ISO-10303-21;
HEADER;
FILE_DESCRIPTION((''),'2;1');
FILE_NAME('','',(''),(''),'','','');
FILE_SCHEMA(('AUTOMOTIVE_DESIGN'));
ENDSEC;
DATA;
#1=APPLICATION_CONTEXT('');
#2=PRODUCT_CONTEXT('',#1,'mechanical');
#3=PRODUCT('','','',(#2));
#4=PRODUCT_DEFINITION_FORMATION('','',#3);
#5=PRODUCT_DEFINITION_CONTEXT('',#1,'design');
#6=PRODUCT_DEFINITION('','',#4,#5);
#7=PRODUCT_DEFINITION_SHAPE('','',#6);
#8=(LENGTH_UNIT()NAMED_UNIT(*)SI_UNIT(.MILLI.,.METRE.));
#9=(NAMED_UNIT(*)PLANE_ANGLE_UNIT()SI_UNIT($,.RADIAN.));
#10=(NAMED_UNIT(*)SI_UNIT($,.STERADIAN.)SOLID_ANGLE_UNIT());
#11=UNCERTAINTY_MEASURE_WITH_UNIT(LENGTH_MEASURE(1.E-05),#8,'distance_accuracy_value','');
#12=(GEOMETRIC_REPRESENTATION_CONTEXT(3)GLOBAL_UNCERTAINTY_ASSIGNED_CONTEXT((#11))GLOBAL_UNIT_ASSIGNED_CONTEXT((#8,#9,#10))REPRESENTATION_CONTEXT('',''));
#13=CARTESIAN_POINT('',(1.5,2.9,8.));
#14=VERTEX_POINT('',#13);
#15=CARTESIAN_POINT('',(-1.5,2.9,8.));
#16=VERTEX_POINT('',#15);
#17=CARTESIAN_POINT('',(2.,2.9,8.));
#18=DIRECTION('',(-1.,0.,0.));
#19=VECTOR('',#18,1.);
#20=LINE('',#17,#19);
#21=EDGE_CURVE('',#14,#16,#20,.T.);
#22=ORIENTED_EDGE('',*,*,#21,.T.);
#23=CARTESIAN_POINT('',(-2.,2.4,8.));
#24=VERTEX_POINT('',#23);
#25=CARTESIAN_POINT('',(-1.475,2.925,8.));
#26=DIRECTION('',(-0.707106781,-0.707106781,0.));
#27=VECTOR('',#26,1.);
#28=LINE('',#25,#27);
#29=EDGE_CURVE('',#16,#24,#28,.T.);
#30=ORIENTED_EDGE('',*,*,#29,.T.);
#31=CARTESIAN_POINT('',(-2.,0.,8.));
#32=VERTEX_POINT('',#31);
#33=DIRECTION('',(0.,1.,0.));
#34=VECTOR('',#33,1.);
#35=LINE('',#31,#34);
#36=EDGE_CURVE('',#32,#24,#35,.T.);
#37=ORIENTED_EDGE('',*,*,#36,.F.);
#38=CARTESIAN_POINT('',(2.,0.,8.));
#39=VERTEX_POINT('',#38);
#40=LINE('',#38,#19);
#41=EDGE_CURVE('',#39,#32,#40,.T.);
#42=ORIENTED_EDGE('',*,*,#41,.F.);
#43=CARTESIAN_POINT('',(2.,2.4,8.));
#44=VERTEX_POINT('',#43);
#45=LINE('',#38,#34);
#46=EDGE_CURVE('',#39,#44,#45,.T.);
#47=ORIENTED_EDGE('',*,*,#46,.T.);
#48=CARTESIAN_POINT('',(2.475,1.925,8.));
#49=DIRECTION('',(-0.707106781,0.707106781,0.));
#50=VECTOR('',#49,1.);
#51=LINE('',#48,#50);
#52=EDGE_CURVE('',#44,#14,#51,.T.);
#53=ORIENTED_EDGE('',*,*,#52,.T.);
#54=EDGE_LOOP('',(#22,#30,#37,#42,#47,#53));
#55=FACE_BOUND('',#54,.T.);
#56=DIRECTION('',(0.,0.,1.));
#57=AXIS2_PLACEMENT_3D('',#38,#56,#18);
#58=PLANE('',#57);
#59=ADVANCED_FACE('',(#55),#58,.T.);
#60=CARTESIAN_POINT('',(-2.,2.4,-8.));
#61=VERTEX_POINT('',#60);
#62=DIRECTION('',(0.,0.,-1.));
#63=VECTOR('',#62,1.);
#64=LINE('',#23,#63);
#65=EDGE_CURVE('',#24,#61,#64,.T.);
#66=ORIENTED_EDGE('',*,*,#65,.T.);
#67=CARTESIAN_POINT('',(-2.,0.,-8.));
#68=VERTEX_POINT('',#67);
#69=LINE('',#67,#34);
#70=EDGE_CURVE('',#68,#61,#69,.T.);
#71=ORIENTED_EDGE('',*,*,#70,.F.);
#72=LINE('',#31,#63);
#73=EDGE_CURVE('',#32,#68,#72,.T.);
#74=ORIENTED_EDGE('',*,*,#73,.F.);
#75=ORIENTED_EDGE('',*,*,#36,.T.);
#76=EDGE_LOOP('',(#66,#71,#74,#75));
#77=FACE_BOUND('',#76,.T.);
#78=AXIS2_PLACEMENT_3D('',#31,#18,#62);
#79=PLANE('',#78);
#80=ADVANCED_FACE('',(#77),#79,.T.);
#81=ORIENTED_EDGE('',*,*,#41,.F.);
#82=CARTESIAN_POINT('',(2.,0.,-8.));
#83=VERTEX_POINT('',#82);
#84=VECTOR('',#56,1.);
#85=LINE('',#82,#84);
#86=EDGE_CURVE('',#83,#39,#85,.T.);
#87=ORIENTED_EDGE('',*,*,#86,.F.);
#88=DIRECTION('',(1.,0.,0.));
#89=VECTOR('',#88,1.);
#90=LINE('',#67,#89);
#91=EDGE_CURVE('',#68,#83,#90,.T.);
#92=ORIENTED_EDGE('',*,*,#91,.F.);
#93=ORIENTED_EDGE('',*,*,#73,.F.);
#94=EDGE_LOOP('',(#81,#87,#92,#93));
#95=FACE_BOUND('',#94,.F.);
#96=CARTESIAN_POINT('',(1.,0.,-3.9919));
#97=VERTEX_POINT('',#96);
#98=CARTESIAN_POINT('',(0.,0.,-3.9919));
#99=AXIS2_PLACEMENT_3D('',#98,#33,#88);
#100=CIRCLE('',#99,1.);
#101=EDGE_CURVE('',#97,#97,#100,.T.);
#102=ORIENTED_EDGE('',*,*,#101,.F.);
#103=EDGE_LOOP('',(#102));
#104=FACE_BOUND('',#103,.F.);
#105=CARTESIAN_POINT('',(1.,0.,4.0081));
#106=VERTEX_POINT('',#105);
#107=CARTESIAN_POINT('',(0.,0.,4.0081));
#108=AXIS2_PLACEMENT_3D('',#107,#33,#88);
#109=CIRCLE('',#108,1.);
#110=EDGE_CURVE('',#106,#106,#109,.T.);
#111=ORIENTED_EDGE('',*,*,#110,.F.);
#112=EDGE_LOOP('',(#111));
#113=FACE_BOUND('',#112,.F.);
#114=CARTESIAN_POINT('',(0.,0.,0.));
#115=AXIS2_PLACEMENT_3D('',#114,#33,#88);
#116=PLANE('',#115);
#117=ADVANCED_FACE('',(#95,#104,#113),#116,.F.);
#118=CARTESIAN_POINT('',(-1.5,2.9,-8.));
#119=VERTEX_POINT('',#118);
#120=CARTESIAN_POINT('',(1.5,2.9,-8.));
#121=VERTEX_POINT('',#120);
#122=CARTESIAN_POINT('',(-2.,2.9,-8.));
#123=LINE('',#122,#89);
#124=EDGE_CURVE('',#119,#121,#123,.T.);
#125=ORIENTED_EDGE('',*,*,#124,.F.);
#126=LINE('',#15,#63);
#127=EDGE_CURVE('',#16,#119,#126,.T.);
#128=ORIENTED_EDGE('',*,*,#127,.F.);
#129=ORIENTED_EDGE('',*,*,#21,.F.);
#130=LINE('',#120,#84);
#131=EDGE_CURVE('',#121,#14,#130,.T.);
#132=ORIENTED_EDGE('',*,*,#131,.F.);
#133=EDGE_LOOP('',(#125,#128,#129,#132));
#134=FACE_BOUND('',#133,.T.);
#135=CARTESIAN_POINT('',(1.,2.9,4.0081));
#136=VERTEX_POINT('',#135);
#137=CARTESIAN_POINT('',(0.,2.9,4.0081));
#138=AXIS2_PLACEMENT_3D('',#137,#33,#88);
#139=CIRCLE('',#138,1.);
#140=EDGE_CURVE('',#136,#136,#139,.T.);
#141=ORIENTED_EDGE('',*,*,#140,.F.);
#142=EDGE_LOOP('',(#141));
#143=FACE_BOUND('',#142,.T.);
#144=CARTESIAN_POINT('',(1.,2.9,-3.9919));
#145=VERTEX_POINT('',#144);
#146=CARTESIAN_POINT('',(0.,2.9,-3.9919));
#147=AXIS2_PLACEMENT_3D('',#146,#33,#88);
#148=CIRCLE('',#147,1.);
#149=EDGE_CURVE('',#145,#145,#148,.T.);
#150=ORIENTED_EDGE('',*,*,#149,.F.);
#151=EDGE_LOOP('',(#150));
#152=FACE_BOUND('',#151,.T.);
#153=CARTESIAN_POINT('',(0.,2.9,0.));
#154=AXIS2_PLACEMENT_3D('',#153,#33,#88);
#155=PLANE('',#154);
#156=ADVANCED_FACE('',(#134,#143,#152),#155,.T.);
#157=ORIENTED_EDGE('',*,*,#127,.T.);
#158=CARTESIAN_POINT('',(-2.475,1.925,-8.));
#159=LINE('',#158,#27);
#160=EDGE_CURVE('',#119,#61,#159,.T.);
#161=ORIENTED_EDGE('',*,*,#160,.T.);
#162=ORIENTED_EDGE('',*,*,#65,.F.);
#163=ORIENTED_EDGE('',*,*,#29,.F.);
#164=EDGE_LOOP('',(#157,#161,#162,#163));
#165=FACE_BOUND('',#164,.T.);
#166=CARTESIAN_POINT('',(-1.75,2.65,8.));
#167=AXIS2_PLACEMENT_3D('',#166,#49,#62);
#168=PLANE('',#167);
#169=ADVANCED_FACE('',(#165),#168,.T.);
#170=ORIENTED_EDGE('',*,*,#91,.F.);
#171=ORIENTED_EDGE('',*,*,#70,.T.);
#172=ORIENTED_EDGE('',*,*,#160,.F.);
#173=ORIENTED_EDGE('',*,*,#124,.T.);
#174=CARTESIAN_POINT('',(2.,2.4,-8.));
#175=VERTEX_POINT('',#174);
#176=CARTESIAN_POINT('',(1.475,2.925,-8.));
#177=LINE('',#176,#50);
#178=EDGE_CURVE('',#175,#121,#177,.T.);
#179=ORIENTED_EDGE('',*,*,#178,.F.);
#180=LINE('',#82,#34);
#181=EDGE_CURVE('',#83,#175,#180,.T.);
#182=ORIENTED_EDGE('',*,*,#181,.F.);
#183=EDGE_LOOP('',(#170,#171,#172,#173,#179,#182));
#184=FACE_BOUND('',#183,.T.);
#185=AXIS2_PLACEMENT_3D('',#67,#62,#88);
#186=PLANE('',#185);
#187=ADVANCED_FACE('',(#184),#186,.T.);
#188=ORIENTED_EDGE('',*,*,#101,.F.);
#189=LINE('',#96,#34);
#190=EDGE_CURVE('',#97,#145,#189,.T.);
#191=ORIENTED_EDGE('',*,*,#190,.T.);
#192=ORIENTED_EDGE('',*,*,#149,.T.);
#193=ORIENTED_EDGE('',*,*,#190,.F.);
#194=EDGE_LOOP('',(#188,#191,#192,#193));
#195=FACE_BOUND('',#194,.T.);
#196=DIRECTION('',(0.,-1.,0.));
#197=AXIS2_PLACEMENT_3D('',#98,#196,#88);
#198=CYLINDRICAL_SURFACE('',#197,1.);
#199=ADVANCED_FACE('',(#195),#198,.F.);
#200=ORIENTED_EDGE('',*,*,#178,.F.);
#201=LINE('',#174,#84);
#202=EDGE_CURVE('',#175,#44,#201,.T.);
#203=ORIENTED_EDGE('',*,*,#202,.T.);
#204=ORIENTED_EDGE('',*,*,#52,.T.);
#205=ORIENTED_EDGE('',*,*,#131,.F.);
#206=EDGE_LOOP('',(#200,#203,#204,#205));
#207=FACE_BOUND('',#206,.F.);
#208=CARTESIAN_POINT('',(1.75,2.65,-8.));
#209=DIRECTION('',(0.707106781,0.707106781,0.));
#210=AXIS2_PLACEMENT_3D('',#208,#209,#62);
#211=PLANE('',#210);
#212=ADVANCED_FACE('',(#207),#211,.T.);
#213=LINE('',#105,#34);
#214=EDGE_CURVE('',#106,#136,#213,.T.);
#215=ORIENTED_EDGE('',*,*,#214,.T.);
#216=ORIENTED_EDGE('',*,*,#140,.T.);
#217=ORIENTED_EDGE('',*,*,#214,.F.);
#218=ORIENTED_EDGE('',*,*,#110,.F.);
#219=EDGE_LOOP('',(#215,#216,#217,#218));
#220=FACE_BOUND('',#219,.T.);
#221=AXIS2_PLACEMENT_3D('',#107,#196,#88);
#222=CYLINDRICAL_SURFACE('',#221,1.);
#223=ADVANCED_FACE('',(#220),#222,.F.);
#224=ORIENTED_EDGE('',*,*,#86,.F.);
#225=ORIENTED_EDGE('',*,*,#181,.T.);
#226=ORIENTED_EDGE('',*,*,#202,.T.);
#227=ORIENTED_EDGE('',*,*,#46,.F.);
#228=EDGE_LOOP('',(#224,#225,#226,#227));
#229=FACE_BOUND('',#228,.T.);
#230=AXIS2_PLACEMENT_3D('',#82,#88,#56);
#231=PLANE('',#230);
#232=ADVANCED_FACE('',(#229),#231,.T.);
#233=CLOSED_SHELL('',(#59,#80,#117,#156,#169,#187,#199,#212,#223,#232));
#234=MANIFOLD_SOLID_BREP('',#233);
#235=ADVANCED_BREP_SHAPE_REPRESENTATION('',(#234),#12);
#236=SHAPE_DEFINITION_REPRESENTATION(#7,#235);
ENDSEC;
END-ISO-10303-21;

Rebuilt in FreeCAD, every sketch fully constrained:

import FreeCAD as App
import Part
import Sketcher
from FreeCAD import Vector


def edges_at(feature, points):
    """Names of the edges that pass closest to the given points."""
    edges = feature.Shape.Edges
    near = lambda p: min(range(len(edges)), key=lambda i: edges[i].distToShape(Part.Vertex(*p))[0])
    return sorted({f"Edge{near(p) + 1}" for p in points})


def add_polygon(sketch, points):
    """Adds a closed chain of lines whose ends are joined by coincident constraints."""
    first, n = sketch.GeometryCount, len(points)
    for a, b in zip(points, points[1:] + points[:1]):
        sketch.addGeometry(Part.LineSegment(App.Vector(*a, 0), App.Vector(*b, 0)), False)
    for i in range(n):
        sketch.addConstraint(Sketcher.Constraint("Coincident", first + i, 2, first + (i + 1) % n, 1))

doc = App.newDocument("Part")
body = doc.addObject("PartDesign::Body", "Body")

# Sketch on XZ plane
sketch1 = body.newObject("Sketcher::SketchObject", "Sketch")
sketch1.AttachmentSupport = (doc.getObject("XZ_Plane"), [""])
sketch1.MapMode = "FlatFace"
add_polygon(sketch1, [(-2, 8), (2, 8), (2, -8), (-2, -8)])  # lines 0-3
sketch1.addGeometry(Part.Circle(Vector(0, 4, 0), Vector(0, 0, 1), 1), False)  # 4
sketch1.addGeometry(Part.Circle(Vector(0, -4, 0), Vector(0, 0, 1), 1), False)  # 5
sketch1.addConstraint([
    Sketcher.Constraint("Horizontal", 0),
    Sketcher.Constraint("Vertical", 1),
    Sketcher.Constraint("Horizontal", 2),
    Sketcher.Constraint("Vertical", 3),
    Sketcher.Constraint("Equal", 4, 5),
    Sketcher.Constraint("Symmetric", 0, 2, 2, 2, -1, 1),
    Sketcher.Constraint("PointOnObject", 4, 3, -2),
    Sketcher.Constraint("PointOnObject", 5, 3, -2),
    Sketcher.Constraint("Diameter", 4, 2.0),
    Sketcher.Constraint("DistanceX", 0, 1, 0, 2, 4.0),
    Sketcher.Constraint("DistanceY", 1, 2, 1, 1, 16.0),
    Sketcher.Constraint("DistanceY", 5, 3, 4, 3, 8.0),
    Sketcher.Constraint("DistanceY", -1, 1, 4, 3, 4.008),
])
pad1 = body.newObject("PartDesign::Pad", "Pad")
pad1.Profile = sketch1
pad1.Length = 2.9
pad1.Reversed = True
doc.recompute()

chamfer = body.newObject("PartDesign::Chamfer", "Chamfer")
chamfer.Base = (pad1, edges_at(pad1, [(2, 2.9, 0)]))
chamfer.Size = 0.5
doc.recompute()

chamfer2 = body.newObject("PartDesign::Chamfer", "Chamfer001")
chamfer2.Base = (chamfer, edges_at(chamfer, [(-2, 2.9, 0)]))
chamfer2.Size = 0.5

doc.recompute()
